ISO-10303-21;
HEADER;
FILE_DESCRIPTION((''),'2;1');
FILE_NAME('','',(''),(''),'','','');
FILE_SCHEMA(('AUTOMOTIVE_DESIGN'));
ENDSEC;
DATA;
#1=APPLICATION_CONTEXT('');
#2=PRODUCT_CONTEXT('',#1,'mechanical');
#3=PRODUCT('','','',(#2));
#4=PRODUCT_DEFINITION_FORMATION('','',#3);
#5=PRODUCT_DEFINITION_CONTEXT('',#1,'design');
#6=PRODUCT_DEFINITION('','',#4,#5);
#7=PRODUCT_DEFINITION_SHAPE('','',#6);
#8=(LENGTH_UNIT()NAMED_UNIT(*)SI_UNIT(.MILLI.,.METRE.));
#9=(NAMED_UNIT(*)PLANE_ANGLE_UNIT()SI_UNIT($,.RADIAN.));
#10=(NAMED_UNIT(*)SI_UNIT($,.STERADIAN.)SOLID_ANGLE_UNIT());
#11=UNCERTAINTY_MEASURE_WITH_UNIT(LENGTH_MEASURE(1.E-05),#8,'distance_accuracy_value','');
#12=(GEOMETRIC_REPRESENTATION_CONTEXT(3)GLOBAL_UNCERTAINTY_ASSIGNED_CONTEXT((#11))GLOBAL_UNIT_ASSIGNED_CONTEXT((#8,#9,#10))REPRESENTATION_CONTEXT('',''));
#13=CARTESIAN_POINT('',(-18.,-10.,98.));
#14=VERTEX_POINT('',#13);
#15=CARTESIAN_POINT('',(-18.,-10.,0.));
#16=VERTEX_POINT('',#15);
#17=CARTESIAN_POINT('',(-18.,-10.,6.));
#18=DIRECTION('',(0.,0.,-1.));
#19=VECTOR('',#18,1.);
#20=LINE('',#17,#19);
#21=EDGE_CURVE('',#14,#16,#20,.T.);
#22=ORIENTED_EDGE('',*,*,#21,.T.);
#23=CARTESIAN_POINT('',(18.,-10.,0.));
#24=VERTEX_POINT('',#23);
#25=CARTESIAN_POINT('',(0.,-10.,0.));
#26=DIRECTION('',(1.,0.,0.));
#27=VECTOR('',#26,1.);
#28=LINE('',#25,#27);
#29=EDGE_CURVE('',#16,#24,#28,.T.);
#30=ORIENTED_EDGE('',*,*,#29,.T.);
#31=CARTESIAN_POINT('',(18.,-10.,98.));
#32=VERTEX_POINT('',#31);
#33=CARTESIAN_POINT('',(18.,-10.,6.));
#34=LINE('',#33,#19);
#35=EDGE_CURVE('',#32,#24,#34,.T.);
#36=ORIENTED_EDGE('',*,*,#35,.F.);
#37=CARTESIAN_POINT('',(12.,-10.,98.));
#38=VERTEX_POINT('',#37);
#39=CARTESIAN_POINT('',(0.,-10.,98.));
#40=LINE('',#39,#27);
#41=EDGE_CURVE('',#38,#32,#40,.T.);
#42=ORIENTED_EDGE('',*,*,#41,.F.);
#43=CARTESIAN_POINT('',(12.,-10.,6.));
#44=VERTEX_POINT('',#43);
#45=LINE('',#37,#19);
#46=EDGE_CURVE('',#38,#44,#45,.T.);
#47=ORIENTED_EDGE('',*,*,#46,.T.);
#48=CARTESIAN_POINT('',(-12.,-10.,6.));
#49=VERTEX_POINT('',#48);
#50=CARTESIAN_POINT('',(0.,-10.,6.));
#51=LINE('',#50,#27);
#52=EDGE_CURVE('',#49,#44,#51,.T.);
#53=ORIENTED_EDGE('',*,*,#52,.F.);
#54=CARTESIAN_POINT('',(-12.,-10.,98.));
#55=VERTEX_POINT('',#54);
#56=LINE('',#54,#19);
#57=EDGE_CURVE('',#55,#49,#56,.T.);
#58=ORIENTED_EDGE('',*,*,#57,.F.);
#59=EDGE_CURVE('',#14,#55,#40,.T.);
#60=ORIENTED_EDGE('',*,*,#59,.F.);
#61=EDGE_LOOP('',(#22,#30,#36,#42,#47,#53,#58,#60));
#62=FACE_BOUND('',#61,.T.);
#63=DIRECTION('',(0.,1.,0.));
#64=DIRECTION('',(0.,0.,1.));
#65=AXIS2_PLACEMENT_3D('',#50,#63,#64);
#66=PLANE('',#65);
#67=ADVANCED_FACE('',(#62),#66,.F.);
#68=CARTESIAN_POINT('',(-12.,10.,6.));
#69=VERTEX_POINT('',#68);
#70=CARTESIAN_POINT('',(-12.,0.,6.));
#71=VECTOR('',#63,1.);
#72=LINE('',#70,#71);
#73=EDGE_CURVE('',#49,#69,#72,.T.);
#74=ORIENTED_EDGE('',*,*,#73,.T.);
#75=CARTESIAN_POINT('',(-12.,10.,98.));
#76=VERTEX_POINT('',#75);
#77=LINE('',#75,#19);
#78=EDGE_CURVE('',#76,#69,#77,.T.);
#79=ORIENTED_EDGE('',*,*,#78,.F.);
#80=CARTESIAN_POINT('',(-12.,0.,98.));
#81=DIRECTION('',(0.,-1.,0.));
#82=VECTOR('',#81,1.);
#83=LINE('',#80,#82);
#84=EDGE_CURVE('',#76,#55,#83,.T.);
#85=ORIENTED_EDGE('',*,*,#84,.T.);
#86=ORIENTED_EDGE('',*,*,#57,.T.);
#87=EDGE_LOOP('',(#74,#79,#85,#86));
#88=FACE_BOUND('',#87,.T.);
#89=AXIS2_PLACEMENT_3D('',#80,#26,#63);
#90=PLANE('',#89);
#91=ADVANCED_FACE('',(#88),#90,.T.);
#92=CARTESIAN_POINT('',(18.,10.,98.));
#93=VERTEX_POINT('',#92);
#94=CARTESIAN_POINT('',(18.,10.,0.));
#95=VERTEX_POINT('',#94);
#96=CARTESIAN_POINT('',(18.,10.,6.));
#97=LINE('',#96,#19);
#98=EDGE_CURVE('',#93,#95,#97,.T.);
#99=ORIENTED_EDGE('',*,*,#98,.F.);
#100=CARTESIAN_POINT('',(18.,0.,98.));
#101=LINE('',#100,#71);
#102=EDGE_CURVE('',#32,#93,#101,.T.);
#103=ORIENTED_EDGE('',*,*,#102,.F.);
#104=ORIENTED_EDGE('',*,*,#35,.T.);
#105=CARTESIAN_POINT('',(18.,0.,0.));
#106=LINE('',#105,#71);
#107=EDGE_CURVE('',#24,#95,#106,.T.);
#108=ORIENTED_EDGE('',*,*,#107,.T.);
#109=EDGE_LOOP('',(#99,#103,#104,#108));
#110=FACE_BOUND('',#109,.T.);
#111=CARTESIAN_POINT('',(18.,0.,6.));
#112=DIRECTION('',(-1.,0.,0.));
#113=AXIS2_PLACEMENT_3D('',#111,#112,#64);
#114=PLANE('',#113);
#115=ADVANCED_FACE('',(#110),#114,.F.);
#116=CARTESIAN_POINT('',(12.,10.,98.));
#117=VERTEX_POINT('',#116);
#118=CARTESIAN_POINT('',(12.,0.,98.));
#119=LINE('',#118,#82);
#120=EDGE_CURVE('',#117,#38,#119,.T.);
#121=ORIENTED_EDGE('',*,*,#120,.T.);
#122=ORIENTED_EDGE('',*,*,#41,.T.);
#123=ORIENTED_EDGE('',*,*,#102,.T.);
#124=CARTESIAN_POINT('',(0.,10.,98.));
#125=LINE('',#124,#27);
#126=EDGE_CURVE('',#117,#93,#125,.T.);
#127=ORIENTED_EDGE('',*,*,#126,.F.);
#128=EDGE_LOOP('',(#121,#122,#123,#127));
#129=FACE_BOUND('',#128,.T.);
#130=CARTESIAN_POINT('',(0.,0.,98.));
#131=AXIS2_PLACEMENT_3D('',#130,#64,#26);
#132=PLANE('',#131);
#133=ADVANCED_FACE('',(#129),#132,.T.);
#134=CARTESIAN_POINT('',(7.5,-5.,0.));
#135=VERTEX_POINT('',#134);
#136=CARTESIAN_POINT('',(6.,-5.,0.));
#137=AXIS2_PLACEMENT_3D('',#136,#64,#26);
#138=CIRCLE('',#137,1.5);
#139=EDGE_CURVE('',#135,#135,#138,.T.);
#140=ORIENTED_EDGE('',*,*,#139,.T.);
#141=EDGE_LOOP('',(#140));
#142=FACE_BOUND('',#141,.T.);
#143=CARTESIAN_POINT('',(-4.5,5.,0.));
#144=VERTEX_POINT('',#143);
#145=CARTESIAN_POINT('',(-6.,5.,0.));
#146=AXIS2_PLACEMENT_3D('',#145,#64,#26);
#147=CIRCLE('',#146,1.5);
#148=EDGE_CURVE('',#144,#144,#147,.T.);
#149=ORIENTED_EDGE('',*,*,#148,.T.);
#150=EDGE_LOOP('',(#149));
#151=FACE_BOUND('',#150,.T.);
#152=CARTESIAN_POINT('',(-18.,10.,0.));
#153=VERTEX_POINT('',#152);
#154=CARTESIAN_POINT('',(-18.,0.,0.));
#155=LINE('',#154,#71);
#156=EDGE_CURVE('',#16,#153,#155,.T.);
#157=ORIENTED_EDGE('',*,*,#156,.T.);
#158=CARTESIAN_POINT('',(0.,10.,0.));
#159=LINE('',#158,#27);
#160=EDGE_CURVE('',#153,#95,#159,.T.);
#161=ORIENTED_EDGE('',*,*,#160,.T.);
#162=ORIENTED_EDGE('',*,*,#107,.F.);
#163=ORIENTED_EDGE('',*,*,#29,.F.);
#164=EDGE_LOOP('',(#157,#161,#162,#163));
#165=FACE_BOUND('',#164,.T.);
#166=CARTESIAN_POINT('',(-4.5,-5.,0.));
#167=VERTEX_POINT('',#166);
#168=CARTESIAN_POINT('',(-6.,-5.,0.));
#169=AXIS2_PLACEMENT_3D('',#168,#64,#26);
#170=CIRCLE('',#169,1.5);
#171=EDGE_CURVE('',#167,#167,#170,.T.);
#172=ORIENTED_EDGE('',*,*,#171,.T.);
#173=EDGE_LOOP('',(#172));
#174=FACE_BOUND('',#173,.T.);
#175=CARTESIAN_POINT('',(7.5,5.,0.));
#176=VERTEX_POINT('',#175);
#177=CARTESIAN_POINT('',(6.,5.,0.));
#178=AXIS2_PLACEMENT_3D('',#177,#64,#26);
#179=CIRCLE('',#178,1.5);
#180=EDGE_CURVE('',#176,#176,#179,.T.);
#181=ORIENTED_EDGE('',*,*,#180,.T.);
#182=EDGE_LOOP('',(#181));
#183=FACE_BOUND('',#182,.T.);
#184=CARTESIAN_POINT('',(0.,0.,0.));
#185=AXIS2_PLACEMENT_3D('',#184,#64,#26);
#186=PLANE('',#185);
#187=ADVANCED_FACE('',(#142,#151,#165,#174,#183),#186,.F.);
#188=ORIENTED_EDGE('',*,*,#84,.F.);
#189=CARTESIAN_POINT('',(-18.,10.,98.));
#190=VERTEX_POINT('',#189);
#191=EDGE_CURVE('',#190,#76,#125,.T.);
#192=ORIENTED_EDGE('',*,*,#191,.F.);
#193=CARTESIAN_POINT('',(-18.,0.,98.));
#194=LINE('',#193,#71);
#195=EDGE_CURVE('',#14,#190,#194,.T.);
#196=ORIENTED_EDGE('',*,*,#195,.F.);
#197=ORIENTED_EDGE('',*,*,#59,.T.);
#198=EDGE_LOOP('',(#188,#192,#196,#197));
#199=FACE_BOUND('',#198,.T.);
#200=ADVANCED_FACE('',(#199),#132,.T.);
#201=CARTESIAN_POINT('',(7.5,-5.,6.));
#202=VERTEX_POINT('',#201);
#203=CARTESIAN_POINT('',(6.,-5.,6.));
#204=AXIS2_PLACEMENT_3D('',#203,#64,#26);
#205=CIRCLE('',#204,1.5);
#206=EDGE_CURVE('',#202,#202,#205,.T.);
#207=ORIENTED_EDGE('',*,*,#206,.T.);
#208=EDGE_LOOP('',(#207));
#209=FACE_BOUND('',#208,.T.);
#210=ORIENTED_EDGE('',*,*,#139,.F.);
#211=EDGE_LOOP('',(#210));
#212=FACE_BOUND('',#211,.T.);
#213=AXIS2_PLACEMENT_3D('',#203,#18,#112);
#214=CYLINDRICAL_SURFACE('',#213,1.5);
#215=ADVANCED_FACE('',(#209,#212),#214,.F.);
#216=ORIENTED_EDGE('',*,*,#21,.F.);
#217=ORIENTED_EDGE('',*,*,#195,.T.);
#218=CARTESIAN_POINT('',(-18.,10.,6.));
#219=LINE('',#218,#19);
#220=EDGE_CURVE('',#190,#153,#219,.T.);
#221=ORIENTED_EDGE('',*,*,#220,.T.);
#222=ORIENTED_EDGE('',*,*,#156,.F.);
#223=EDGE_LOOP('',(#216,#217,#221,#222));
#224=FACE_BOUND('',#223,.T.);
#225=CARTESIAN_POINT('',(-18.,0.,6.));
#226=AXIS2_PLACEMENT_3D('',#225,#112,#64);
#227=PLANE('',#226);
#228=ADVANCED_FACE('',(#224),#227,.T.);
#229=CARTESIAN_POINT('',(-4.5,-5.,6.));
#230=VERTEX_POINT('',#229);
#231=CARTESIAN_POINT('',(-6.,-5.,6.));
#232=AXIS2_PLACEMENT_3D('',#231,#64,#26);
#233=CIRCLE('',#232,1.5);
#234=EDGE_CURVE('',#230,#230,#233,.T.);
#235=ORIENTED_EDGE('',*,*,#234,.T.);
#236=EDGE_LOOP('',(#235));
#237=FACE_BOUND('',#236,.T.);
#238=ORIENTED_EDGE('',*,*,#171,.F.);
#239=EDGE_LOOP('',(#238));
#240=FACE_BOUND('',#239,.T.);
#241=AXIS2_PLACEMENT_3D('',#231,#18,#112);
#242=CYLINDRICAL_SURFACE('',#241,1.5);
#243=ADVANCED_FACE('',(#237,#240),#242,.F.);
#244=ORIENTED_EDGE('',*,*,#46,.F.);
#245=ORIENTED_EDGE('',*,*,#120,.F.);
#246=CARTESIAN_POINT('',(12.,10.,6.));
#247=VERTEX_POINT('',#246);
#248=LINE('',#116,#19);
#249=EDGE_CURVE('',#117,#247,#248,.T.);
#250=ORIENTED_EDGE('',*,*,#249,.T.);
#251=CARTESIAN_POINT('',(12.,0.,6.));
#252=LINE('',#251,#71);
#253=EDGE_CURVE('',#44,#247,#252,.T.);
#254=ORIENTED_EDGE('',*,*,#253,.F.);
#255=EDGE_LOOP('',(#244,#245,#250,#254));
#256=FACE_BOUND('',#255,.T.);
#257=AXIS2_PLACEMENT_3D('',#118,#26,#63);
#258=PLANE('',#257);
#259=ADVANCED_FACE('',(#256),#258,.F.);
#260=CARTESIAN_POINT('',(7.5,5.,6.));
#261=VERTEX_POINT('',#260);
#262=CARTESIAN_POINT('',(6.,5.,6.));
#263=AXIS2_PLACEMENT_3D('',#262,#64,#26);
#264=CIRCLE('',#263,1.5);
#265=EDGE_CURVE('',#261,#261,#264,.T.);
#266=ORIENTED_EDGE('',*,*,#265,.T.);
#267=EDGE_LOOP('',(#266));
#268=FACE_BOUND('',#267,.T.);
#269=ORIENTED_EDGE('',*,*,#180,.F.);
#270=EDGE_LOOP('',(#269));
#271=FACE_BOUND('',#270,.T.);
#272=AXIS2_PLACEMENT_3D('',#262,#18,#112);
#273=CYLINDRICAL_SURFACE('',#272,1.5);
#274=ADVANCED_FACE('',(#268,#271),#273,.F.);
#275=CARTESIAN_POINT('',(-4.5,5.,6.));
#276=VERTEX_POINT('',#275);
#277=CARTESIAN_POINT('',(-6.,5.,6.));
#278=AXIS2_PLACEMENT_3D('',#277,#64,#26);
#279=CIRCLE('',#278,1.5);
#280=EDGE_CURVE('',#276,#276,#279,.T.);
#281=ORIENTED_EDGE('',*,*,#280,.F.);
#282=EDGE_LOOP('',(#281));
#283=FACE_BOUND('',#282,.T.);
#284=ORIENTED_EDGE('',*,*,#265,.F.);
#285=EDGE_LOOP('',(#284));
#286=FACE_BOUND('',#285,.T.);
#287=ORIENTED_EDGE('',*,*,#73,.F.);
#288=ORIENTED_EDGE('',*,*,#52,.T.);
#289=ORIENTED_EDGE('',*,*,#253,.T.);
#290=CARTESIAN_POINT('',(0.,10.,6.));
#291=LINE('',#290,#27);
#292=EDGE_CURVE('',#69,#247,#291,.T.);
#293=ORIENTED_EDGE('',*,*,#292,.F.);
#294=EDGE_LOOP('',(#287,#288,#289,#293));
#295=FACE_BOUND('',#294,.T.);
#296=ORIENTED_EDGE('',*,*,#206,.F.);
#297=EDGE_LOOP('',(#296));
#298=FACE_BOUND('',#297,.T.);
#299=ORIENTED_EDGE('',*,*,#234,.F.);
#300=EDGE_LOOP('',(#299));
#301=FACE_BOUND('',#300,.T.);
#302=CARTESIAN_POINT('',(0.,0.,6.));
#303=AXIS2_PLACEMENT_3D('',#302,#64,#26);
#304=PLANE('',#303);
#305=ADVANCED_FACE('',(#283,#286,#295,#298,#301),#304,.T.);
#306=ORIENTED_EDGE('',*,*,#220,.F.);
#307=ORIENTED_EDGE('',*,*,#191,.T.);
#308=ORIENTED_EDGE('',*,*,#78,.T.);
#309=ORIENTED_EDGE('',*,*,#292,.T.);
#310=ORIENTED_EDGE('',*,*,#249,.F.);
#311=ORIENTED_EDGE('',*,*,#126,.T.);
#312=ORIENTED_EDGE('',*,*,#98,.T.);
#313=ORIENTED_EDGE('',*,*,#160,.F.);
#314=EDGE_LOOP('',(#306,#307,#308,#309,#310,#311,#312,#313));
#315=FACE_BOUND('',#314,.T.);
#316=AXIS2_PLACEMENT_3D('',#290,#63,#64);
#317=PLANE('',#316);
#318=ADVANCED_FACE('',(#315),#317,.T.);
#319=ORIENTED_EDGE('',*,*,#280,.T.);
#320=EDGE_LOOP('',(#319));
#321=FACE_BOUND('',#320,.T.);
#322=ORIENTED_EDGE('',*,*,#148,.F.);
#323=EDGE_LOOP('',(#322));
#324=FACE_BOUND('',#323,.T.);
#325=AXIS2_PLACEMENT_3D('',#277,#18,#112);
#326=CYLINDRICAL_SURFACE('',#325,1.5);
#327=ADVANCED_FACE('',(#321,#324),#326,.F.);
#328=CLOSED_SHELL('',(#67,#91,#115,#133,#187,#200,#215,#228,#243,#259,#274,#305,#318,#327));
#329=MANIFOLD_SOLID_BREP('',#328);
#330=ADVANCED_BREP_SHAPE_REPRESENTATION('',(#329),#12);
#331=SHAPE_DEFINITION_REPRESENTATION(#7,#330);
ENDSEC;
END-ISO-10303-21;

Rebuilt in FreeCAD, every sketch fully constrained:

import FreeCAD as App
import Part
import Sketcher


def add_polygon(sketch, points):
    """Adds a closed chain of lines whose ends are joined by coincident constraints."""
    first, n = sketch.GeometryCount, len(points)
    for a, b in zip(points, points[1:] + points[:1]):
        sketch.addGeometry(Part.LineSegment(App.Vector(*a, 0), App.Vector(*b, 0)), False)
    for i in range(n):
        sketch.addConstraint(Sketcher.Constraint("Coincident", first + i, 2, first + (i + 1) % n, 1))

doc = App.newDocument("Part")
body = doc.addObject("PartDesign::Body", "Body")

sketch1 = body.newObject("Sketcher::SketchObject", "Sketch")
sketch1.AttachmentSupport = (doc.getObject("XY_Plane"), [""])
sketch1.MapMode = "FlatFace"
add_polygon(sketch1, [(-18, 10), (-18, -10), (18, -10), (18, 10)])
sketch1.addGeometry(Part.Circle(App.Vector(6, 5, 0), App.Vector(0, 0, 1), 1.5), False)
sketch1.addGeometry(Part.Circle(App.Vector(-6, -5, 0), App.Vector(0, 0, 1), 1.5), False)
sketch1.addGeometry(Part.Circle(App.Vector(6, -5, 0), App.Vector(0, 0, 1), 1.5), False)
sketch1.addGeometry(Part.Circle(App.Vector(-6, 5, 0), App.Vector(0, 0, 1), 1.5), False)
sketch1.addConstraint([
    Sketcher.Constraint("Vertical", 0),
    Sketcher.Constraint("Horizontal", 1),
    Sketcher.Constraint("Vertical", 2),
    Sketcher.Constraint("Horizontal", 3),
    Sketcher.Constraint("Equal", 4, 5),
    Sketcher.Constraint("Equal", 5, 6),
    Sketcher.Constraint("Equal", 6, 7),
    Sketcher.Constraint("Symmetric", 4, 3, 5, 3, -1, 1),
    Sketcher.Constraint("Symmetric", 6, 3, 7, 3, -1, 1),
    Sketcher.Constraint("Symmetric", 0, 2, 2, 2, -1, 1),
    Sketcher.Constraint("Symmetric", 5, 3, 6, 3, -2),
    Sketcher.Constraint("Diameter", 4, 3.0),
    Sketcher.Constraint("DistanceX", 1, 1, 1, 2, 36.0),
    Sketcher.Constraint("DistanceY", 0, 2, 0, 1, 20.0),
    Sketcher.Constraint("DistanceX", -1, 1, 4, 3, 6.0),
    Sketcher.Constraint("DistanceY", -1, 1, 4, 3, 5.0),
])
pad1 = body.newObject("PartDesign::Pad", "Pad")
pad1.Profile = sketch1
pad1.Length = 6

sketch2 = body.newObject("Sketcher::SketchObject", "Sketch001")
sketch2.AttachmentSupport = (doc.getObject("XY_Plane"), [""])
sketch2.MapMode = "FlatFace"
add_polygon(sketch2, [(12, 10), (12, -10), (18, -10), (18, 10)])
add_polygon(sketch2, [(-18, 10), (-18, -10), (-12, -10), (-12, 10)])
sketch2.addConstraint([
    Sketcher.Constraint("Vertical", 0),
    Sketcher.Constraint("Horizontal", 1),
    Sketcher.Constraint("Vertical", 2),
    Sketcher.Constraint("Horizontal", 3),
    Sketcher.Constraint("Vertical", 4),
    Sketcher.Constraint("Horizontal", 5),
    Sketcher.Constraint("Vertical", 6),
    Sketcher.Constraint("Horizontal", 7),
    Sketcher.Constraint("Symmetric", 2, 2, 4, 2, -1, 1),
    Sketcher.Constraint("Symmetric", 0, 2, 6, 2, -1, 1),
    Sketcher.Constraint("Horizontal", 1, 2, 4, 2),
    Sketcher.Constraint("DistanceX", 1, 1, 1, 2, 6.0),
    Sketcher.Constraint("DistanceY", 0, 2, 0, 1, 20.0),
    Sketcher.Constraint("DistanceX", -1, 1, 0, 2, 12.0),
])
pad2 = body.newObject("PartDesign::Pad", "Pad001")
pad2.Profile = sketch2
pad2.Length = 98

doc.recompute()
